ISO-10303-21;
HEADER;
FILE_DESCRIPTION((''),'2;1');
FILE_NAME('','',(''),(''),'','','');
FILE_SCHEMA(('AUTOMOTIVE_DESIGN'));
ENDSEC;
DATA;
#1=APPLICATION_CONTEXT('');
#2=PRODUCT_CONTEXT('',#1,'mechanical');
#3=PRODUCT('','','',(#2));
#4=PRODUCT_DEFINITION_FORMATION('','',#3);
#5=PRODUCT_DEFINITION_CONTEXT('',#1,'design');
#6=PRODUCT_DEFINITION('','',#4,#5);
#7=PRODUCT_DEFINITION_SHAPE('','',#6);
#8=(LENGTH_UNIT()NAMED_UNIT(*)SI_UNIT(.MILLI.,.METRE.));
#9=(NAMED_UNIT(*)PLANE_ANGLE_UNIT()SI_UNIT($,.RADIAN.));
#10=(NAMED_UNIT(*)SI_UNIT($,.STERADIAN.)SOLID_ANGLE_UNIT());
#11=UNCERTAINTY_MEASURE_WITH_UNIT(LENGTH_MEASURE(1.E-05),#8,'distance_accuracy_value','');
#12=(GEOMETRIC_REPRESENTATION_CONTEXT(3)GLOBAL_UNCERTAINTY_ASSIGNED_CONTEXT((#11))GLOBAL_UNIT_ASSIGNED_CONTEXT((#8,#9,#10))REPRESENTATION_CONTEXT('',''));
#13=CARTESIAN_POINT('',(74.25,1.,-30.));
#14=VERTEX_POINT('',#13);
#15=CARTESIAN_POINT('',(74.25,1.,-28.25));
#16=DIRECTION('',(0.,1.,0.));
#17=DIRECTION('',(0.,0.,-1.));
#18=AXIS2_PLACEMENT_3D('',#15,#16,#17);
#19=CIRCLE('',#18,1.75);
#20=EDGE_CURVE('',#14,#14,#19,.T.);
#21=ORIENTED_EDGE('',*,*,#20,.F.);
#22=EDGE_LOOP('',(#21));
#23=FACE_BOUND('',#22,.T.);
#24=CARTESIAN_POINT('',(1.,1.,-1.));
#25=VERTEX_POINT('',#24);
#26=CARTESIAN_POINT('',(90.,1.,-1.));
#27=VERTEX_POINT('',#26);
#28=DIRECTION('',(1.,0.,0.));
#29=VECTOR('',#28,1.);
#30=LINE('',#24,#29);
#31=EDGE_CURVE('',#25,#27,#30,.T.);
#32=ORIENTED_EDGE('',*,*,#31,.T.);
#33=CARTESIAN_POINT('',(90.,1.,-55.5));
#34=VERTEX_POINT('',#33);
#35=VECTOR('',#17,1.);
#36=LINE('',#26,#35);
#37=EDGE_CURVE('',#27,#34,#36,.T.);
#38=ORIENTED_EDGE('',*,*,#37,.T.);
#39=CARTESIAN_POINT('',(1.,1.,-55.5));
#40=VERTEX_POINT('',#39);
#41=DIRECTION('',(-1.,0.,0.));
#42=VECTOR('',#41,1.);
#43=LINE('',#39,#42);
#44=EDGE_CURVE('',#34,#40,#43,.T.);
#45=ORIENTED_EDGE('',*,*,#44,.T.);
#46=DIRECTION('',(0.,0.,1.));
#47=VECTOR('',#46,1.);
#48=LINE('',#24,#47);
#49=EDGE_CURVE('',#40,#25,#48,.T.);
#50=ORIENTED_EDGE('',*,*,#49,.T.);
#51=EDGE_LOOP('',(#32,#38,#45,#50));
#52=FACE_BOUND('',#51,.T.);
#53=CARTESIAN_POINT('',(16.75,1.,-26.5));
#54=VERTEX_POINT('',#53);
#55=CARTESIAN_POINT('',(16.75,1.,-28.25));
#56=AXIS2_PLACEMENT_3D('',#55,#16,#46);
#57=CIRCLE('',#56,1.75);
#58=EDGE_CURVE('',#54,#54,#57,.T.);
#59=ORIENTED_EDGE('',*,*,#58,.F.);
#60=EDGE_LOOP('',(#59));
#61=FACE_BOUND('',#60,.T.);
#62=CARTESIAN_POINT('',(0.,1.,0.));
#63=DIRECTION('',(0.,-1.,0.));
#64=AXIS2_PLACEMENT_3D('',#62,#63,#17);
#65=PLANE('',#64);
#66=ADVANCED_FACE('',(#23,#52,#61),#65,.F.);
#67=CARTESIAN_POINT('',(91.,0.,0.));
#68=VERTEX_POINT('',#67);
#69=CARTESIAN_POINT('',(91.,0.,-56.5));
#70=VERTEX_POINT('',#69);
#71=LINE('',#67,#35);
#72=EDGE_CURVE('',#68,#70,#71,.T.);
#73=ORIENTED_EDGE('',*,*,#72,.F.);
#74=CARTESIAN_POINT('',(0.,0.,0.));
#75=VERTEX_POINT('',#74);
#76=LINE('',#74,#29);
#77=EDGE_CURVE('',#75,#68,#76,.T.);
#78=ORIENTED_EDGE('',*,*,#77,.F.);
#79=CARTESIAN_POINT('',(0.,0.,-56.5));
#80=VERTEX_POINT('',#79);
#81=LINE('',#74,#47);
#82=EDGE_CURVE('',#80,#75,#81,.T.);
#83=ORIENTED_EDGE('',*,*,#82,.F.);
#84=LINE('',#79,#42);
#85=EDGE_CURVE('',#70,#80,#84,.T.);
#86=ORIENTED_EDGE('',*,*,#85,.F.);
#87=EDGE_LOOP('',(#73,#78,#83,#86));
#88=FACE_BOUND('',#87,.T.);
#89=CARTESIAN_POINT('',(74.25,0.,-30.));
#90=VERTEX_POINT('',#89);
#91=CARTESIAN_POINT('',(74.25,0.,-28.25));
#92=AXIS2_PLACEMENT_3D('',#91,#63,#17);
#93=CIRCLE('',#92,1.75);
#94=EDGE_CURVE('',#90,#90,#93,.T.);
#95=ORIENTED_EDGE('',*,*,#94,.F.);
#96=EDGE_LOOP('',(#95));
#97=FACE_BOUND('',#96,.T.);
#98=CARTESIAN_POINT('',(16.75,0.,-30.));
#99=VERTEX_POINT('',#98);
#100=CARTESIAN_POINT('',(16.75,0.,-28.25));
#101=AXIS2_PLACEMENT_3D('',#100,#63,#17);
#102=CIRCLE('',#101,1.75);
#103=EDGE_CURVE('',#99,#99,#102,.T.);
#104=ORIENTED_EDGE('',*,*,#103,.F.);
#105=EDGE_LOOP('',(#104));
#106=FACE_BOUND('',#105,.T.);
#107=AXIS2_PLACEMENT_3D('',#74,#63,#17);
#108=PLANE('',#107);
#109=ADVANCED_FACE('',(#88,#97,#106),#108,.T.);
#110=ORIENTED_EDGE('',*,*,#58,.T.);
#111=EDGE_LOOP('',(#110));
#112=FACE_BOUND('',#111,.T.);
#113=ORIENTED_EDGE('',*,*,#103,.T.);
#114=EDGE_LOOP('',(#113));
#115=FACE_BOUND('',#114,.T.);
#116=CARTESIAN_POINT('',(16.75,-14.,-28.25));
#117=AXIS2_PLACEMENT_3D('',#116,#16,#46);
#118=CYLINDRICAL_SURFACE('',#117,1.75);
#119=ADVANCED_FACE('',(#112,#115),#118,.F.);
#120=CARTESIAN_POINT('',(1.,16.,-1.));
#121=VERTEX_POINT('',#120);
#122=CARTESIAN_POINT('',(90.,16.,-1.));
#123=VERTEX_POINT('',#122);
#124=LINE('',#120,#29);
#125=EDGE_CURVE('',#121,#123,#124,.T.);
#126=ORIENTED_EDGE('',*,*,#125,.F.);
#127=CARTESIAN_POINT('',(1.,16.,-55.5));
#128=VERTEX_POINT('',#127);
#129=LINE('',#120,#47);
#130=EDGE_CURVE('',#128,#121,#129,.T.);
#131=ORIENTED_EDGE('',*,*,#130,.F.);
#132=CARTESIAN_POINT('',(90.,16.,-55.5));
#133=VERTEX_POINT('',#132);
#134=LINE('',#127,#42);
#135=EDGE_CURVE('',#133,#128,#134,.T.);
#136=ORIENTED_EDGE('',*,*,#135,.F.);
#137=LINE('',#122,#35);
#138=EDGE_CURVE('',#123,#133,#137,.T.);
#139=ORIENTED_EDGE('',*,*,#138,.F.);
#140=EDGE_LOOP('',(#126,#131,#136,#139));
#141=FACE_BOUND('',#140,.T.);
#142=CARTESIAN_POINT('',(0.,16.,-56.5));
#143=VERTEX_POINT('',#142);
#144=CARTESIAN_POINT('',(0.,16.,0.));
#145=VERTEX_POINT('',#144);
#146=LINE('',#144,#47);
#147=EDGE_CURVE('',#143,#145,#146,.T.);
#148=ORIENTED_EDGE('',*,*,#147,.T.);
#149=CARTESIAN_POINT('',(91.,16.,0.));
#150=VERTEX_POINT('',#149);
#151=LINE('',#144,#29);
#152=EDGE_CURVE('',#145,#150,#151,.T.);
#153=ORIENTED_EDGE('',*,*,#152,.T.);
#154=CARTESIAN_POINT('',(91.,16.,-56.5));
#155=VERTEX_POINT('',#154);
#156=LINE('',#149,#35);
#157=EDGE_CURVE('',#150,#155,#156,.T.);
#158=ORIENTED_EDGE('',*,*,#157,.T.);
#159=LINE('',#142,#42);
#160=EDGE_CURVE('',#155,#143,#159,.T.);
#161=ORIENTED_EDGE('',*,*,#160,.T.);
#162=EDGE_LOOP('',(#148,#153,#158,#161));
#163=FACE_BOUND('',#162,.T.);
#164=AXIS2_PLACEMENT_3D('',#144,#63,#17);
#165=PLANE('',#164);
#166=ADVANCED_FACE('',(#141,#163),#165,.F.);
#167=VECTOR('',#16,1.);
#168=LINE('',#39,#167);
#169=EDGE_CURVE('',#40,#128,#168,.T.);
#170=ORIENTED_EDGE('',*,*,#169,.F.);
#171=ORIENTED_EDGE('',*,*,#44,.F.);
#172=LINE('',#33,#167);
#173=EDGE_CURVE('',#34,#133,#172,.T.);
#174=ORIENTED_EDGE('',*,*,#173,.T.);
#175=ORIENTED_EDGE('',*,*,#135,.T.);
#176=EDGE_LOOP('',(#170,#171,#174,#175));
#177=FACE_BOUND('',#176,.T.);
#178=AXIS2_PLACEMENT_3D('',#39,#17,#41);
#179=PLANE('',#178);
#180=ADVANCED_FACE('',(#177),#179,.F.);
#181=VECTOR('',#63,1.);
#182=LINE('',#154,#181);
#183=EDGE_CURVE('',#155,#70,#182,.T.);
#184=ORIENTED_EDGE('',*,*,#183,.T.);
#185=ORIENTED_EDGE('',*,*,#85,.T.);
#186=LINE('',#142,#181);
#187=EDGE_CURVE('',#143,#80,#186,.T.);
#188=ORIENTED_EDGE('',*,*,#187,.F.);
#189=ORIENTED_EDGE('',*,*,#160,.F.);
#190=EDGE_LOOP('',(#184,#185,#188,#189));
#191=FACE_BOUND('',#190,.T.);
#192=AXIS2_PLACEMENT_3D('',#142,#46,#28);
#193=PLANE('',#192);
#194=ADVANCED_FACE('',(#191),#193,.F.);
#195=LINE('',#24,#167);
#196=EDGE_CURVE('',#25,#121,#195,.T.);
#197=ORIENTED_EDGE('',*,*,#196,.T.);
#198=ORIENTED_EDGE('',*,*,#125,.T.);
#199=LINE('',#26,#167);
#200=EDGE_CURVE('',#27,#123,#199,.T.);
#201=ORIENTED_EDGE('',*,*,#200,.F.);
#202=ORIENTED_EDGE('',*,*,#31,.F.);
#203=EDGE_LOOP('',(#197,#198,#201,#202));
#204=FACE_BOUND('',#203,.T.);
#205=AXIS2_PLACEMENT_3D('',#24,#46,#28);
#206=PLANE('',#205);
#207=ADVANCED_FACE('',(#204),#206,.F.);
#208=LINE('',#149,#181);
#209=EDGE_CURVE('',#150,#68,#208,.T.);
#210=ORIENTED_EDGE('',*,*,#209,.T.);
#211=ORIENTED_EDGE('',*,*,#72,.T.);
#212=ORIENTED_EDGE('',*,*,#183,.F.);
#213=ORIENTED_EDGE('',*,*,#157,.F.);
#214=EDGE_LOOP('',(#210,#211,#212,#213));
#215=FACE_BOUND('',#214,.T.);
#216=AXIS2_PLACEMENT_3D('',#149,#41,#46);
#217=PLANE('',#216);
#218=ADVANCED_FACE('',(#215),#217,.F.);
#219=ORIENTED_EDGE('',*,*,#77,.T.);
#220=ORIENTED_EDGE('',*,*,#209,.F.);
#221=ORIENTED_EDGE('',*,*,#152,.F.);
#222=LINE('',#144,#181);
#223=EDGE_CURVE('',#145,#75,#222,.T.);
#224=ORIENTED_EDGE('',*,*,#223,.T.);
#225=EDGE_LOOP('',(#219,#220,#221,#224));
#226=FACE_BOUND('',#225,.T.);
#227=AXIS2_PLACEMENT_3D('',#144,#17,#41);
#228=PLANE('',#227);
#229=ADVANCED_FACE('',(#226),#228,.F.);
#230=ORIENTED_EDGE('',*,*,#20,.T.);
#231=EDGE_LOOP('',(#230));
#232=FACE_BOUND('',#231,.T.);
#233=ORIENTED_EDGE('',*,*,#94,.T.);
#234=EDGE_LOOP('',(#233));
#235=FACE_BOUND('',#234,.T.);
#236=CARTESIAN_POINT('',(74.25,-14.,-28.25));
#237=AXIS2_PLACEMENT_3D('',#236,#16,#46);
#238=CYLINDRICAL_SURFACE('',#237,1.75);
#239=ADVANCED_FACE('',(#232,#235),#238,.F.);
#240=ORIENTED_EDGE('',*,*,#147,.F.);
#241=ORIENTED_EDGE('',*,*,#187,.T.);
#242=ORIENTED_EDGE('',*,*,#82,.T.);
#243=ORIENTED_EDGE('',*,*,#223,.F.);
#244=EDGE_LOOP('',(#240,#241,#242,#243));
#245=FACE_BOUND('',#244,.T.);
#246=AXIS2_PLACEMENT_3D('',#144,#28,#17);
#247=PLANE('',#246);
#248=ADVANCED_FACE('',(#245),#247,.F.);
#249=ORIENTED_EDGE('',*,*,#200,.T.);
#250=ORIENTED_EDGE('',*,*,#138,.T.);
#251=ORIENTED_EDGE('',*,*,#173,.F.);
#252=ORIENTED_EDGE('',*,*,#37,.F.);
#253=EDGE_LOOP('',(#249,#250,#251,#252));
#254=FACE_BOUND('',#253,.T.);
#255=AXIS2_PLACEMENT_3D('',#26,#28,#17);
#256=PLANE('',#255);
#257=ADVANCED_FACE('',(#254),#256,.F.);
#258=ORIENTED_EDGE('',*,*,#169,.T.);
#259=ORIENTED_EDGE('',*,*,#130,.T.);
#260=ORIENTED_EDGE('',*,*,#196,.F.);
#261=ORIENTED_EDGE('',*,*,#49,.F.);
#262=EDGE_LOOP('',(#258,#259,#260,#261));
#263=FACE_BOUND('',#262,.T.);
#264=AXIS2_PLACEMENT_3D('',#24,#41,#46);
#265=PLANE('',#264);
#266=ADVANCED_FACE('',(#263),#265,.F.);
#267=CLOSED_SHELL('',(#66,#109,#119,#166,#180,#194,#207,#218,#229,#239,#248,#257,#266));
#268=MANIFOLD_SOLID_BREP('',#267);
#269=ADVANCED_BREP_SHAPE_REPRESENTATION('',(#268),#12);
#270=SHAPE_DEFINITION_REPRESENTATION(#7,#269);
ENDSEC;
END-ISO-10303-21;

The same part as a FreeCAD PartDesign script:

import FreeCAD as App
import Part
import Sketcher

V = App.Vector
Q = App.Units.Quantity

doc = App.newDocument("Part")
body = doc.addObject("PartDesign::Body", "Body")

# Sketch on XZ plane
sketch1 = body.newObject("Sketcher::SketchObject", "Sketch")
sketch1.AttachmentSupport = (doc.getObject("XZ_Plane"), [""])
sketch1.MapMode = "FlatFace"
sketch1.addGeometry(Part.LineSegment(V(0, -56, 0), V(0, 0, 0)), False)
sketch1.addGeometry(Part.LineSegment(V(0, 0, 0), V(91, 0, 0)), False)
sketch1.addGeometry(Part.LineSegment(V(91, 0, 0), V(91, -56, 0)), False)
sketch1.addGeometry(Part.LineSegment(V(91, -56, 0), V(0, -56, 0)), False)
sketch1.addConstraint(Sketcher.Constraint("Coincident", 0, 2, 1, 1))
sketch1.addConstraint(Sketcher.Constraint("Coincident", 1, 2, 2, 1))
sketch1.addConstraint(Sketcher.Constraint("Coincident", 2, 2, 3, 1))
sketch1.addConstraint(Sketcher.Constraint("Coincident", 3, 2, 0, 1))
sketch1.addConstraint(Sketcher.Constraint("Vertical", 0))
sketch1.addConstraint(Sketcher.Constraint("Horizontal", 1))
sketch1.addConstraint(Sketcher.Constraint("Vertical", 2))
sketch1.addConstraint(Sketcher.Constraint("Horizontal", 3))
sketch1.addConstraint(Sketcher.Constraint("Coincident", 0, 2, -1, 1))
sketch1.addConstraint(Sketcher.Constraint("DistanceX", 1, 1, 1, 2, Q("91 mm")))
sketch1.addConstraint(Sketcher.Constraint("DistanceY", 0, 1, 0, 2, Q("56.5 mm")))
pad1 = body.newObject("PartDesign::Pad", "Pad")
pad1.Profile = sketch1
pad1.Length = 16
pad1.Reversed = True

# Sketch on XZ plane
sketch2 = body.newObject("Sketcher::SketchObject", "Sketch001")
sketch2.AttachmentSupport = (doc.getObject("XZ_Plane"), [""])
sketch2.MapMode = "FlatFace"
sketch2.AttachmentOffset = App.Placement(V(0, 0, -16), App.Rotation())
sketch2.addGeometry(Part.LineSegment(V(1, -56, 0), V(1, -1, 0)), False)
sketch2.addGeometry(Part.LineSegment(V(1, -1, 0), V(90, -1, 0)), False)
sketch2.addGeometry(Part.LineSegment(V(90, -1, 0), V(90, -56, 0)), False)
sketch2.addGeometry(Part.LineSegment(V(90, -56, 0), V(1, -56, 0)), False)
sketch2.addConstraint(Sketcher.Constraint("Coincident", 0, 2, 1, 1))
sketch2.addConstraint(Sketcher.Constraint("Coincident", 1, 2, 2, 1))
sketch2.addConstraint(Sketcher.Constraint("Coincident", 2, 2, 3, 1))
sketch2.addConstraint(Sketcher.Constraint("Coincident", 3, 2, 0, 1))
sketch2.addConstraint(Sketcher.Constraint("Vertical", 0))
sketch2.addConstraint(Sketcher.Constraint("Horizontal", 1))
sketch2.addConstraint(Sketcher.Constraint("Vertical", 2))
sketch2.addConstraint(Sketcher.Constraint("Horizontal", 3))
sketch2.addConstraint(Sketcher.Constraint("DistanceX", 1, 1, 1, 2, Q("89 mm")))
sketch2.addConstraint(Sketcher.Constraint("DistanceY", 0, 1, 0, 2, Q("54.5 mm")))
sketch2.addConstraint(Sketcher.Constraint("DistanceX", -1, 1, 0, 2, Q("1 mm")))
sketch2.addConstraint(Sketcher.Constraint("DistanceY", 0, 2, -1, 1, Q("1 mm")))
pocket1 = body.newObject("PartDesign::Pocket", "Pocket")
pocket1.Profile = sketch2
pocket1.Length = 15
pocket1.Reversed = True

# Sketch on XZ plane
sketch3 = body.newObject("Sketcher::SketchObject", "Sketch002")
sketch3.AttachmentSupport = (doc.getObject("XZ_Plane"), [""])
sketch3.MapMode = "FlatFace"
sketch3.AttachmentOffset = App.Placement(V(0, 0, -1), App.Rotation())
sketch3.addGeometry(Part.Circle(V(16.8, -28.2, 0), V(0, 0, 1), 1.8), False)
sketch3.addGeometry(Part.Circle(V(74.2, -28.2, 0), V(0, 0, 1), 1.8), False)
sketch3.addConstraint(Sketcher.Constraint("Equal", 0, 1))
sketch3.addConstraint(Sketcher.Constraint("Horizontal", 0, 3, 1, 3))
sketch3.addConstraint(Sketcher.Constraint("Diameter", 0, Q("3.5 mm")))
sketch3.addConstraint(Sketcher.Constraint("DistanceX", 0, 3, 1, 3, Q("57.5 mm")))
sketch3.addConstraint(Sketcher.Constraint("DistanceX", -1, 1, 0, 3, Q("16.75 mm")))
sketch3.addConstraint(Sketcher.Constraint("DistanceY", 0, 3, -1, 1, Q("28.25 mm")))
pocket2 = body.newObject("PartDesign::Pocket", "Pocket001")
pocket2.Profile = sketch3
pocket2.Length = 15
pocket2.Reversed = True

doc.recompute()
